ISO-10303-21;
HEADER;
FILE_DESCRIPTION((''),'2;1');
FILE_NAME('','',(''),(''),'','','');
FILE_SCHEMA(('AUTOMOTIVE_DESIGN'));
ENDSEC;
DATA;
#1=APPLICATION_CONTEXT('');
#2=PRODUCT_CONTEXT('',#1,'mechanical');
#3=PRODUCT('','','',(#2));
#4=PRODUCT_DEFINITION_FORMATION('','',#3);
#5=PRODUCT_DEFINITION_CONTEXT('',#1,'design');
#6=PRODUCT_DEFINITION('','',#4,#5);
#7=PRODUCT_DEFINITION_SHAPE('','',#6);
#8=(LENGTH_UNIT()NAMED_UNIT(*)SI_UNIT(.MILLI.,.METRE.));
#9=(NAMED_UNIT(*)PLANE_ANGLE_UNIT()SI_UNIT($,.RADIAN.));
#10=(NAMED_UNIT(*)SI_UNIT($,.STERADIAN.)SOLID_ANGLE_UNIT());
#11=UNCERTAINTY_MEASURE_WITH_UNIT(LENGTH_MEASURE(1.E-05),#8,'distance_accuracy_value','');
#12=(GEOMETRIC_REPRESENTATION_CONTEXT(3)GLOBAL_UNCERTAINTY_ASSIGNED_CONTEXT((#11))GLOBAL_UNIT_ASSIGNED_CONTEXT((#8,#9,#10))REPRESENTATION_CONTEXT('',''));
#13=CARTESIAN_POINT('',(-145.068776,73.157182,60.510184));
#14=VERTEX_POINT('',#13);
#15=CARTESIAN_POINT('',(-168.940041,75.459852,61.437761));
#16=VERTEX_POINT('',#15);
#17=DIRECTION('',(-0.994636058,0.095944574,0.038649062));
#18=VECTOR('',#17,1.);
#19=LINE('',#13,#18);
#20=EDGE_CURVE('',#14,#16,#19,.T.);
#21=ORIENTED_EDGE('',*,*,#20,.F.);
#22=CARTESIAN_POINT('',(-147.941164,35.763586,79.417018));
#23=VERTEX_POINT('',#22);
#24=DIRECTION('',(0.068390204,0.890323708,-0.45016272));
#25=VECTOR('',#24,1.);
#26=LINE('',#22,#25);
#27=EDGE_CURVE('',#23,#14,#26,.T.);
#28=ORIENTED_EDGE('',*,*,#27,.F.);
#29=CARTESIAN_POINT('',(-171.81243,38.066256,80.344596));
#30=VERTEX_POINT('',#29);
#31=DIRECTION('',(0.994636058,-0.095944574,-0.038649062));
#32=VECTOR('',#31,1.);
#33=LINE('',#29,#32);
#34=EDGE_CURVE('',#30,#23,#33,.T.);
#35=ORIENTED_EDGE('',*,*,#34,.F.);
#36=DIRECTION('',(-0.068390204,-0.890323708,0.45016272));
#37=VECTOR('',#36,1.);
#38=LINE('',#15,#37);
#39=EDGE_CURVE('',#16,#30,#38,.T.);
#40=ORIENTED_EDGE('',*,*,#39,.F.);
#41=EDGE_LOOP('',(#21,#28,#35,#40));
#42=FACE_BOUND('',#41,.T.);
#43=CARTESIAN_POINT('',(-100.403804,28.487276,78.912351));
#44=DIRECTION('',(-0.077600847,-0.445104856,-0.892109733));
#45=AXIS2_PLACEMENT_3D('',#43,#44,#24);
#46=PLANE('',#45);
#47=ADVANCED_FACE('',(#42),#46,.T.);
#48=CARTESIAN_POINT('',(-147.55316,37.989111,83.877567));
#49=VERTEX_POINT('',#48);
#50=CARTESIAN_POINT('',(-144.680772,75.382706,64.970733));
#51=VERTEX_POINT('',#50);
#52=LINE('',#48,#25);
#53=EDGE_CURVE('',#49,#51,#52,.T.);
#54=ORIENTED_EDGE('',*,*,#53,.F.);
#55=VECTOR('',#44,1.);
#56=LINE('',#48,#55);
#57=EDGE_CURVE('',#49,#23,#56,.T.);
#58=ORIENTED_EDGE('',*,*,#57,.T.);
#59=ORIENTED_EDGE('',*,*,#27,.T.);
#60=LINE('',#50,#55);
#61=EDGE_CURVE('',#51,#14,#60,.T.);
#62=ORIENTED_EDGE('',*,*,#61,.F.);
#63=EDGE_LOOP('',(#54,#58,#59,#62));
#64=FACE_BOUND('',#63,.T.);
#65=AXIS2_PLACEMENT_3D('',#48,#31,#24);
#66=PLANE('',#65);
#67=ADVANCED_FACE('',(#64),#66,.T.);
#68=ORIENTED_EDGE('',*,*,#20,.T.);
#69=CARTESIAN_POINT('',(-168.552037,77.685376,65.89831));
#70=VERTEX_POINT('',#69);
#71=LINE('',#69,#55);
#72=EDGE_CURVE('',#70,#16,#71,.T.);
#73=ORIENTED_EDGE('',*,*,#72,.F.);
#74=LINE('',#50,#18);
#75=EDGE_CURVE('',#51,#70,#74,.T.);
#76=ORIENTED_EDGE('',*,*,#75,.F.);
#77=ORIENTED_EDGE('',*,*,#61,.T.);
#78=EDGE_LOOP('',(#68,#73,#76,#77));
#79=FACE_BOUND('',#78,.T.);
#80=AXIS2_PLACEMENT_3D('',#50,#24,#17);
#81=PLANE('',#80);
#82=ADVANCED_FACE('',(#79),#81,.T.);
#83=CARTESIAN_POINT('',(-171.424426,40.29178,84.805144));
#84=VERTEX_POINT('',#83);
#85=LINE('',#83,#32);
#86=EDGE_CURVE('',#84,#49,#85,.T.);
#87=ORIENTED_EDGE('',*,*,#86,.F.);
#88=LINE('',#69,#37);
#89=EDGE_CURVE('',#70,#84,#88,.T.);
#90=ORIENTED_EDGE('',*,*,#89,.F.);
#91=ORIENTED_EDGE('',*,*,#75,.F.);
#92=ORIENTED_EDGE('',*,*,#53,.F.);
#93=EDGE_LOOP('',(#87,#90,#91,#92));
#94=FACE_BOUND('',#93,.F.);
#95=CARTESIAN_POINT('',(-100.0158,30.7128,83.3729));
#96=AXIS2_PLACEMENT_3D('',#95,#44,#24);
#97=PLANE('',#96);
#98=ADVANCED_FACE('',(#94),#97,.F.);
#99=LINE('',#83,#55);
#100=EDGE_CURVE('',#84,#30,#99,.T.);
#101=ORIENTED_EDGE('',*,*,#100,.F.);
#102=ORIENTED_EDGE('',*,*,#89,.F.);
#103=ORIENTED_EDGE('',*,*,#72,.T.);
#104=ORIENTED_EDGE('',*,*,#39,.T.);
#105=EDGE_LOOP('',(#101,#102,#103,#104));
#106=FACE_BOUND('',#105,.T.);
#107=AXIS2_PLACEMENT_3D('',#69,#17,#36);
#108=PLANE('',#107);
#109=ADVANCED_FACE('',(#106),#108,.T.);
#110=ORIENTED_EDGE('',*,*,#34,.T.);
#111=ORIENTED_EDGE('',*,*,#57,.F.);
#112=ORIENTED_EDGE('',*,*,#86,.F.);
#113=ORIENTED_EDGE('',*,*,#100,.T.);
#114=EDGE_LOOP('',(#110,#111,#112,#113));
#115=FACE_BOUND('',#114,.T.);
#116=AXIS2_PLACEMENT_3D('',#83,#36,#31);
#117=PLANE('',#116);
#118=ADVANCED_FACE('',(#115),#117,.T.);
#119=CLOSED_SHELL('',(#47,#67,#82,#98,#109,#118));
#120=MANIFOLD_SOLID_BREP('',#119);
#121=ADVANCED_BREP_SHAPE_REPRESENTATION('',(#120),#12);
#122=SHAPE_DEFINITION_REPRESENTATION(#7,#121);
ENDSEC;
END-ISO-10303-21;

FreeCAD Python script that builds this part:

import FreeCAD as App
import Part
import Sketcher
Q = App.Units.Quantity

doc = App.newDocument("Part")
body = doc.addObject("PartDesign::Body", "Body")

# Sketch on an angled plane
sketch1 = body.newObject("Sketcher::SketchObject", "Sketch")
sketch1.Placement = App.Placement(App.Vector(-100.0158, 30.7128, 83.3729), App.Rotation(App.Vector(0.068390204, 0.890323708, -0.45016272), App.Vector(0.994636058, -0.095944575, -0.038649062), App.Vector(-0.077600847, -0.445104856, -0.892109733), "ZXY"))
sketch1.addGeometry([
    Part.LineSegment(App.Vector(45, -48, 0), App.Vector(3, -48, 0)),
    Part.LineSegment(App.Vector(3, -48, 0), App.Vector(3, -72, 0)),
    Part.LineSegment(App.Vector(3, -72, 0), App.Vector(45, -72, 0)),
    Part.LineSegment(App.Vector(45, -72, 0), App.Vector(45, -48, 0)),
], False)
sketch1.addConstraint([
    Sketcher.Constraint("Coincident", 0, 2, 1, 1),
    Sketcher.Constraint("Coincident", 1, 2, 2, 1),
    Sketcher.Constraint("Coincident", 2, 2, 3, 1),
    Sketcher.Constraint("Coincident", 3, 2, 0, 1),
    Sketcher.Constraint("Horizontal", 0),
    Sketcher.Constraint("Vertical", 1),
    Sketcher.Constraint("Horizontal", 2),
    Sketcher.Constraint("Vertical", 3),
    Sketcher.Constraint("DistanceX", 0, 2, 0, 1, Q("42 mm")),
    Sketcher.Constraint("DistanceY", 1, 2, 1, 1, Q("24 mm")),
    Sketcher.Constraint("DistanceX", -1, 1, 0, 2, Q("3 mm")),
    Sketcher.Constraint("DistanceY", 0, 2, -1, 1, Q("48 mm")),
])
pad1 = body.newObject("PartDesign::Pad", "Pad")
pad1.Profile = sketch1
pad1.Length = 5

doc.recompute()
